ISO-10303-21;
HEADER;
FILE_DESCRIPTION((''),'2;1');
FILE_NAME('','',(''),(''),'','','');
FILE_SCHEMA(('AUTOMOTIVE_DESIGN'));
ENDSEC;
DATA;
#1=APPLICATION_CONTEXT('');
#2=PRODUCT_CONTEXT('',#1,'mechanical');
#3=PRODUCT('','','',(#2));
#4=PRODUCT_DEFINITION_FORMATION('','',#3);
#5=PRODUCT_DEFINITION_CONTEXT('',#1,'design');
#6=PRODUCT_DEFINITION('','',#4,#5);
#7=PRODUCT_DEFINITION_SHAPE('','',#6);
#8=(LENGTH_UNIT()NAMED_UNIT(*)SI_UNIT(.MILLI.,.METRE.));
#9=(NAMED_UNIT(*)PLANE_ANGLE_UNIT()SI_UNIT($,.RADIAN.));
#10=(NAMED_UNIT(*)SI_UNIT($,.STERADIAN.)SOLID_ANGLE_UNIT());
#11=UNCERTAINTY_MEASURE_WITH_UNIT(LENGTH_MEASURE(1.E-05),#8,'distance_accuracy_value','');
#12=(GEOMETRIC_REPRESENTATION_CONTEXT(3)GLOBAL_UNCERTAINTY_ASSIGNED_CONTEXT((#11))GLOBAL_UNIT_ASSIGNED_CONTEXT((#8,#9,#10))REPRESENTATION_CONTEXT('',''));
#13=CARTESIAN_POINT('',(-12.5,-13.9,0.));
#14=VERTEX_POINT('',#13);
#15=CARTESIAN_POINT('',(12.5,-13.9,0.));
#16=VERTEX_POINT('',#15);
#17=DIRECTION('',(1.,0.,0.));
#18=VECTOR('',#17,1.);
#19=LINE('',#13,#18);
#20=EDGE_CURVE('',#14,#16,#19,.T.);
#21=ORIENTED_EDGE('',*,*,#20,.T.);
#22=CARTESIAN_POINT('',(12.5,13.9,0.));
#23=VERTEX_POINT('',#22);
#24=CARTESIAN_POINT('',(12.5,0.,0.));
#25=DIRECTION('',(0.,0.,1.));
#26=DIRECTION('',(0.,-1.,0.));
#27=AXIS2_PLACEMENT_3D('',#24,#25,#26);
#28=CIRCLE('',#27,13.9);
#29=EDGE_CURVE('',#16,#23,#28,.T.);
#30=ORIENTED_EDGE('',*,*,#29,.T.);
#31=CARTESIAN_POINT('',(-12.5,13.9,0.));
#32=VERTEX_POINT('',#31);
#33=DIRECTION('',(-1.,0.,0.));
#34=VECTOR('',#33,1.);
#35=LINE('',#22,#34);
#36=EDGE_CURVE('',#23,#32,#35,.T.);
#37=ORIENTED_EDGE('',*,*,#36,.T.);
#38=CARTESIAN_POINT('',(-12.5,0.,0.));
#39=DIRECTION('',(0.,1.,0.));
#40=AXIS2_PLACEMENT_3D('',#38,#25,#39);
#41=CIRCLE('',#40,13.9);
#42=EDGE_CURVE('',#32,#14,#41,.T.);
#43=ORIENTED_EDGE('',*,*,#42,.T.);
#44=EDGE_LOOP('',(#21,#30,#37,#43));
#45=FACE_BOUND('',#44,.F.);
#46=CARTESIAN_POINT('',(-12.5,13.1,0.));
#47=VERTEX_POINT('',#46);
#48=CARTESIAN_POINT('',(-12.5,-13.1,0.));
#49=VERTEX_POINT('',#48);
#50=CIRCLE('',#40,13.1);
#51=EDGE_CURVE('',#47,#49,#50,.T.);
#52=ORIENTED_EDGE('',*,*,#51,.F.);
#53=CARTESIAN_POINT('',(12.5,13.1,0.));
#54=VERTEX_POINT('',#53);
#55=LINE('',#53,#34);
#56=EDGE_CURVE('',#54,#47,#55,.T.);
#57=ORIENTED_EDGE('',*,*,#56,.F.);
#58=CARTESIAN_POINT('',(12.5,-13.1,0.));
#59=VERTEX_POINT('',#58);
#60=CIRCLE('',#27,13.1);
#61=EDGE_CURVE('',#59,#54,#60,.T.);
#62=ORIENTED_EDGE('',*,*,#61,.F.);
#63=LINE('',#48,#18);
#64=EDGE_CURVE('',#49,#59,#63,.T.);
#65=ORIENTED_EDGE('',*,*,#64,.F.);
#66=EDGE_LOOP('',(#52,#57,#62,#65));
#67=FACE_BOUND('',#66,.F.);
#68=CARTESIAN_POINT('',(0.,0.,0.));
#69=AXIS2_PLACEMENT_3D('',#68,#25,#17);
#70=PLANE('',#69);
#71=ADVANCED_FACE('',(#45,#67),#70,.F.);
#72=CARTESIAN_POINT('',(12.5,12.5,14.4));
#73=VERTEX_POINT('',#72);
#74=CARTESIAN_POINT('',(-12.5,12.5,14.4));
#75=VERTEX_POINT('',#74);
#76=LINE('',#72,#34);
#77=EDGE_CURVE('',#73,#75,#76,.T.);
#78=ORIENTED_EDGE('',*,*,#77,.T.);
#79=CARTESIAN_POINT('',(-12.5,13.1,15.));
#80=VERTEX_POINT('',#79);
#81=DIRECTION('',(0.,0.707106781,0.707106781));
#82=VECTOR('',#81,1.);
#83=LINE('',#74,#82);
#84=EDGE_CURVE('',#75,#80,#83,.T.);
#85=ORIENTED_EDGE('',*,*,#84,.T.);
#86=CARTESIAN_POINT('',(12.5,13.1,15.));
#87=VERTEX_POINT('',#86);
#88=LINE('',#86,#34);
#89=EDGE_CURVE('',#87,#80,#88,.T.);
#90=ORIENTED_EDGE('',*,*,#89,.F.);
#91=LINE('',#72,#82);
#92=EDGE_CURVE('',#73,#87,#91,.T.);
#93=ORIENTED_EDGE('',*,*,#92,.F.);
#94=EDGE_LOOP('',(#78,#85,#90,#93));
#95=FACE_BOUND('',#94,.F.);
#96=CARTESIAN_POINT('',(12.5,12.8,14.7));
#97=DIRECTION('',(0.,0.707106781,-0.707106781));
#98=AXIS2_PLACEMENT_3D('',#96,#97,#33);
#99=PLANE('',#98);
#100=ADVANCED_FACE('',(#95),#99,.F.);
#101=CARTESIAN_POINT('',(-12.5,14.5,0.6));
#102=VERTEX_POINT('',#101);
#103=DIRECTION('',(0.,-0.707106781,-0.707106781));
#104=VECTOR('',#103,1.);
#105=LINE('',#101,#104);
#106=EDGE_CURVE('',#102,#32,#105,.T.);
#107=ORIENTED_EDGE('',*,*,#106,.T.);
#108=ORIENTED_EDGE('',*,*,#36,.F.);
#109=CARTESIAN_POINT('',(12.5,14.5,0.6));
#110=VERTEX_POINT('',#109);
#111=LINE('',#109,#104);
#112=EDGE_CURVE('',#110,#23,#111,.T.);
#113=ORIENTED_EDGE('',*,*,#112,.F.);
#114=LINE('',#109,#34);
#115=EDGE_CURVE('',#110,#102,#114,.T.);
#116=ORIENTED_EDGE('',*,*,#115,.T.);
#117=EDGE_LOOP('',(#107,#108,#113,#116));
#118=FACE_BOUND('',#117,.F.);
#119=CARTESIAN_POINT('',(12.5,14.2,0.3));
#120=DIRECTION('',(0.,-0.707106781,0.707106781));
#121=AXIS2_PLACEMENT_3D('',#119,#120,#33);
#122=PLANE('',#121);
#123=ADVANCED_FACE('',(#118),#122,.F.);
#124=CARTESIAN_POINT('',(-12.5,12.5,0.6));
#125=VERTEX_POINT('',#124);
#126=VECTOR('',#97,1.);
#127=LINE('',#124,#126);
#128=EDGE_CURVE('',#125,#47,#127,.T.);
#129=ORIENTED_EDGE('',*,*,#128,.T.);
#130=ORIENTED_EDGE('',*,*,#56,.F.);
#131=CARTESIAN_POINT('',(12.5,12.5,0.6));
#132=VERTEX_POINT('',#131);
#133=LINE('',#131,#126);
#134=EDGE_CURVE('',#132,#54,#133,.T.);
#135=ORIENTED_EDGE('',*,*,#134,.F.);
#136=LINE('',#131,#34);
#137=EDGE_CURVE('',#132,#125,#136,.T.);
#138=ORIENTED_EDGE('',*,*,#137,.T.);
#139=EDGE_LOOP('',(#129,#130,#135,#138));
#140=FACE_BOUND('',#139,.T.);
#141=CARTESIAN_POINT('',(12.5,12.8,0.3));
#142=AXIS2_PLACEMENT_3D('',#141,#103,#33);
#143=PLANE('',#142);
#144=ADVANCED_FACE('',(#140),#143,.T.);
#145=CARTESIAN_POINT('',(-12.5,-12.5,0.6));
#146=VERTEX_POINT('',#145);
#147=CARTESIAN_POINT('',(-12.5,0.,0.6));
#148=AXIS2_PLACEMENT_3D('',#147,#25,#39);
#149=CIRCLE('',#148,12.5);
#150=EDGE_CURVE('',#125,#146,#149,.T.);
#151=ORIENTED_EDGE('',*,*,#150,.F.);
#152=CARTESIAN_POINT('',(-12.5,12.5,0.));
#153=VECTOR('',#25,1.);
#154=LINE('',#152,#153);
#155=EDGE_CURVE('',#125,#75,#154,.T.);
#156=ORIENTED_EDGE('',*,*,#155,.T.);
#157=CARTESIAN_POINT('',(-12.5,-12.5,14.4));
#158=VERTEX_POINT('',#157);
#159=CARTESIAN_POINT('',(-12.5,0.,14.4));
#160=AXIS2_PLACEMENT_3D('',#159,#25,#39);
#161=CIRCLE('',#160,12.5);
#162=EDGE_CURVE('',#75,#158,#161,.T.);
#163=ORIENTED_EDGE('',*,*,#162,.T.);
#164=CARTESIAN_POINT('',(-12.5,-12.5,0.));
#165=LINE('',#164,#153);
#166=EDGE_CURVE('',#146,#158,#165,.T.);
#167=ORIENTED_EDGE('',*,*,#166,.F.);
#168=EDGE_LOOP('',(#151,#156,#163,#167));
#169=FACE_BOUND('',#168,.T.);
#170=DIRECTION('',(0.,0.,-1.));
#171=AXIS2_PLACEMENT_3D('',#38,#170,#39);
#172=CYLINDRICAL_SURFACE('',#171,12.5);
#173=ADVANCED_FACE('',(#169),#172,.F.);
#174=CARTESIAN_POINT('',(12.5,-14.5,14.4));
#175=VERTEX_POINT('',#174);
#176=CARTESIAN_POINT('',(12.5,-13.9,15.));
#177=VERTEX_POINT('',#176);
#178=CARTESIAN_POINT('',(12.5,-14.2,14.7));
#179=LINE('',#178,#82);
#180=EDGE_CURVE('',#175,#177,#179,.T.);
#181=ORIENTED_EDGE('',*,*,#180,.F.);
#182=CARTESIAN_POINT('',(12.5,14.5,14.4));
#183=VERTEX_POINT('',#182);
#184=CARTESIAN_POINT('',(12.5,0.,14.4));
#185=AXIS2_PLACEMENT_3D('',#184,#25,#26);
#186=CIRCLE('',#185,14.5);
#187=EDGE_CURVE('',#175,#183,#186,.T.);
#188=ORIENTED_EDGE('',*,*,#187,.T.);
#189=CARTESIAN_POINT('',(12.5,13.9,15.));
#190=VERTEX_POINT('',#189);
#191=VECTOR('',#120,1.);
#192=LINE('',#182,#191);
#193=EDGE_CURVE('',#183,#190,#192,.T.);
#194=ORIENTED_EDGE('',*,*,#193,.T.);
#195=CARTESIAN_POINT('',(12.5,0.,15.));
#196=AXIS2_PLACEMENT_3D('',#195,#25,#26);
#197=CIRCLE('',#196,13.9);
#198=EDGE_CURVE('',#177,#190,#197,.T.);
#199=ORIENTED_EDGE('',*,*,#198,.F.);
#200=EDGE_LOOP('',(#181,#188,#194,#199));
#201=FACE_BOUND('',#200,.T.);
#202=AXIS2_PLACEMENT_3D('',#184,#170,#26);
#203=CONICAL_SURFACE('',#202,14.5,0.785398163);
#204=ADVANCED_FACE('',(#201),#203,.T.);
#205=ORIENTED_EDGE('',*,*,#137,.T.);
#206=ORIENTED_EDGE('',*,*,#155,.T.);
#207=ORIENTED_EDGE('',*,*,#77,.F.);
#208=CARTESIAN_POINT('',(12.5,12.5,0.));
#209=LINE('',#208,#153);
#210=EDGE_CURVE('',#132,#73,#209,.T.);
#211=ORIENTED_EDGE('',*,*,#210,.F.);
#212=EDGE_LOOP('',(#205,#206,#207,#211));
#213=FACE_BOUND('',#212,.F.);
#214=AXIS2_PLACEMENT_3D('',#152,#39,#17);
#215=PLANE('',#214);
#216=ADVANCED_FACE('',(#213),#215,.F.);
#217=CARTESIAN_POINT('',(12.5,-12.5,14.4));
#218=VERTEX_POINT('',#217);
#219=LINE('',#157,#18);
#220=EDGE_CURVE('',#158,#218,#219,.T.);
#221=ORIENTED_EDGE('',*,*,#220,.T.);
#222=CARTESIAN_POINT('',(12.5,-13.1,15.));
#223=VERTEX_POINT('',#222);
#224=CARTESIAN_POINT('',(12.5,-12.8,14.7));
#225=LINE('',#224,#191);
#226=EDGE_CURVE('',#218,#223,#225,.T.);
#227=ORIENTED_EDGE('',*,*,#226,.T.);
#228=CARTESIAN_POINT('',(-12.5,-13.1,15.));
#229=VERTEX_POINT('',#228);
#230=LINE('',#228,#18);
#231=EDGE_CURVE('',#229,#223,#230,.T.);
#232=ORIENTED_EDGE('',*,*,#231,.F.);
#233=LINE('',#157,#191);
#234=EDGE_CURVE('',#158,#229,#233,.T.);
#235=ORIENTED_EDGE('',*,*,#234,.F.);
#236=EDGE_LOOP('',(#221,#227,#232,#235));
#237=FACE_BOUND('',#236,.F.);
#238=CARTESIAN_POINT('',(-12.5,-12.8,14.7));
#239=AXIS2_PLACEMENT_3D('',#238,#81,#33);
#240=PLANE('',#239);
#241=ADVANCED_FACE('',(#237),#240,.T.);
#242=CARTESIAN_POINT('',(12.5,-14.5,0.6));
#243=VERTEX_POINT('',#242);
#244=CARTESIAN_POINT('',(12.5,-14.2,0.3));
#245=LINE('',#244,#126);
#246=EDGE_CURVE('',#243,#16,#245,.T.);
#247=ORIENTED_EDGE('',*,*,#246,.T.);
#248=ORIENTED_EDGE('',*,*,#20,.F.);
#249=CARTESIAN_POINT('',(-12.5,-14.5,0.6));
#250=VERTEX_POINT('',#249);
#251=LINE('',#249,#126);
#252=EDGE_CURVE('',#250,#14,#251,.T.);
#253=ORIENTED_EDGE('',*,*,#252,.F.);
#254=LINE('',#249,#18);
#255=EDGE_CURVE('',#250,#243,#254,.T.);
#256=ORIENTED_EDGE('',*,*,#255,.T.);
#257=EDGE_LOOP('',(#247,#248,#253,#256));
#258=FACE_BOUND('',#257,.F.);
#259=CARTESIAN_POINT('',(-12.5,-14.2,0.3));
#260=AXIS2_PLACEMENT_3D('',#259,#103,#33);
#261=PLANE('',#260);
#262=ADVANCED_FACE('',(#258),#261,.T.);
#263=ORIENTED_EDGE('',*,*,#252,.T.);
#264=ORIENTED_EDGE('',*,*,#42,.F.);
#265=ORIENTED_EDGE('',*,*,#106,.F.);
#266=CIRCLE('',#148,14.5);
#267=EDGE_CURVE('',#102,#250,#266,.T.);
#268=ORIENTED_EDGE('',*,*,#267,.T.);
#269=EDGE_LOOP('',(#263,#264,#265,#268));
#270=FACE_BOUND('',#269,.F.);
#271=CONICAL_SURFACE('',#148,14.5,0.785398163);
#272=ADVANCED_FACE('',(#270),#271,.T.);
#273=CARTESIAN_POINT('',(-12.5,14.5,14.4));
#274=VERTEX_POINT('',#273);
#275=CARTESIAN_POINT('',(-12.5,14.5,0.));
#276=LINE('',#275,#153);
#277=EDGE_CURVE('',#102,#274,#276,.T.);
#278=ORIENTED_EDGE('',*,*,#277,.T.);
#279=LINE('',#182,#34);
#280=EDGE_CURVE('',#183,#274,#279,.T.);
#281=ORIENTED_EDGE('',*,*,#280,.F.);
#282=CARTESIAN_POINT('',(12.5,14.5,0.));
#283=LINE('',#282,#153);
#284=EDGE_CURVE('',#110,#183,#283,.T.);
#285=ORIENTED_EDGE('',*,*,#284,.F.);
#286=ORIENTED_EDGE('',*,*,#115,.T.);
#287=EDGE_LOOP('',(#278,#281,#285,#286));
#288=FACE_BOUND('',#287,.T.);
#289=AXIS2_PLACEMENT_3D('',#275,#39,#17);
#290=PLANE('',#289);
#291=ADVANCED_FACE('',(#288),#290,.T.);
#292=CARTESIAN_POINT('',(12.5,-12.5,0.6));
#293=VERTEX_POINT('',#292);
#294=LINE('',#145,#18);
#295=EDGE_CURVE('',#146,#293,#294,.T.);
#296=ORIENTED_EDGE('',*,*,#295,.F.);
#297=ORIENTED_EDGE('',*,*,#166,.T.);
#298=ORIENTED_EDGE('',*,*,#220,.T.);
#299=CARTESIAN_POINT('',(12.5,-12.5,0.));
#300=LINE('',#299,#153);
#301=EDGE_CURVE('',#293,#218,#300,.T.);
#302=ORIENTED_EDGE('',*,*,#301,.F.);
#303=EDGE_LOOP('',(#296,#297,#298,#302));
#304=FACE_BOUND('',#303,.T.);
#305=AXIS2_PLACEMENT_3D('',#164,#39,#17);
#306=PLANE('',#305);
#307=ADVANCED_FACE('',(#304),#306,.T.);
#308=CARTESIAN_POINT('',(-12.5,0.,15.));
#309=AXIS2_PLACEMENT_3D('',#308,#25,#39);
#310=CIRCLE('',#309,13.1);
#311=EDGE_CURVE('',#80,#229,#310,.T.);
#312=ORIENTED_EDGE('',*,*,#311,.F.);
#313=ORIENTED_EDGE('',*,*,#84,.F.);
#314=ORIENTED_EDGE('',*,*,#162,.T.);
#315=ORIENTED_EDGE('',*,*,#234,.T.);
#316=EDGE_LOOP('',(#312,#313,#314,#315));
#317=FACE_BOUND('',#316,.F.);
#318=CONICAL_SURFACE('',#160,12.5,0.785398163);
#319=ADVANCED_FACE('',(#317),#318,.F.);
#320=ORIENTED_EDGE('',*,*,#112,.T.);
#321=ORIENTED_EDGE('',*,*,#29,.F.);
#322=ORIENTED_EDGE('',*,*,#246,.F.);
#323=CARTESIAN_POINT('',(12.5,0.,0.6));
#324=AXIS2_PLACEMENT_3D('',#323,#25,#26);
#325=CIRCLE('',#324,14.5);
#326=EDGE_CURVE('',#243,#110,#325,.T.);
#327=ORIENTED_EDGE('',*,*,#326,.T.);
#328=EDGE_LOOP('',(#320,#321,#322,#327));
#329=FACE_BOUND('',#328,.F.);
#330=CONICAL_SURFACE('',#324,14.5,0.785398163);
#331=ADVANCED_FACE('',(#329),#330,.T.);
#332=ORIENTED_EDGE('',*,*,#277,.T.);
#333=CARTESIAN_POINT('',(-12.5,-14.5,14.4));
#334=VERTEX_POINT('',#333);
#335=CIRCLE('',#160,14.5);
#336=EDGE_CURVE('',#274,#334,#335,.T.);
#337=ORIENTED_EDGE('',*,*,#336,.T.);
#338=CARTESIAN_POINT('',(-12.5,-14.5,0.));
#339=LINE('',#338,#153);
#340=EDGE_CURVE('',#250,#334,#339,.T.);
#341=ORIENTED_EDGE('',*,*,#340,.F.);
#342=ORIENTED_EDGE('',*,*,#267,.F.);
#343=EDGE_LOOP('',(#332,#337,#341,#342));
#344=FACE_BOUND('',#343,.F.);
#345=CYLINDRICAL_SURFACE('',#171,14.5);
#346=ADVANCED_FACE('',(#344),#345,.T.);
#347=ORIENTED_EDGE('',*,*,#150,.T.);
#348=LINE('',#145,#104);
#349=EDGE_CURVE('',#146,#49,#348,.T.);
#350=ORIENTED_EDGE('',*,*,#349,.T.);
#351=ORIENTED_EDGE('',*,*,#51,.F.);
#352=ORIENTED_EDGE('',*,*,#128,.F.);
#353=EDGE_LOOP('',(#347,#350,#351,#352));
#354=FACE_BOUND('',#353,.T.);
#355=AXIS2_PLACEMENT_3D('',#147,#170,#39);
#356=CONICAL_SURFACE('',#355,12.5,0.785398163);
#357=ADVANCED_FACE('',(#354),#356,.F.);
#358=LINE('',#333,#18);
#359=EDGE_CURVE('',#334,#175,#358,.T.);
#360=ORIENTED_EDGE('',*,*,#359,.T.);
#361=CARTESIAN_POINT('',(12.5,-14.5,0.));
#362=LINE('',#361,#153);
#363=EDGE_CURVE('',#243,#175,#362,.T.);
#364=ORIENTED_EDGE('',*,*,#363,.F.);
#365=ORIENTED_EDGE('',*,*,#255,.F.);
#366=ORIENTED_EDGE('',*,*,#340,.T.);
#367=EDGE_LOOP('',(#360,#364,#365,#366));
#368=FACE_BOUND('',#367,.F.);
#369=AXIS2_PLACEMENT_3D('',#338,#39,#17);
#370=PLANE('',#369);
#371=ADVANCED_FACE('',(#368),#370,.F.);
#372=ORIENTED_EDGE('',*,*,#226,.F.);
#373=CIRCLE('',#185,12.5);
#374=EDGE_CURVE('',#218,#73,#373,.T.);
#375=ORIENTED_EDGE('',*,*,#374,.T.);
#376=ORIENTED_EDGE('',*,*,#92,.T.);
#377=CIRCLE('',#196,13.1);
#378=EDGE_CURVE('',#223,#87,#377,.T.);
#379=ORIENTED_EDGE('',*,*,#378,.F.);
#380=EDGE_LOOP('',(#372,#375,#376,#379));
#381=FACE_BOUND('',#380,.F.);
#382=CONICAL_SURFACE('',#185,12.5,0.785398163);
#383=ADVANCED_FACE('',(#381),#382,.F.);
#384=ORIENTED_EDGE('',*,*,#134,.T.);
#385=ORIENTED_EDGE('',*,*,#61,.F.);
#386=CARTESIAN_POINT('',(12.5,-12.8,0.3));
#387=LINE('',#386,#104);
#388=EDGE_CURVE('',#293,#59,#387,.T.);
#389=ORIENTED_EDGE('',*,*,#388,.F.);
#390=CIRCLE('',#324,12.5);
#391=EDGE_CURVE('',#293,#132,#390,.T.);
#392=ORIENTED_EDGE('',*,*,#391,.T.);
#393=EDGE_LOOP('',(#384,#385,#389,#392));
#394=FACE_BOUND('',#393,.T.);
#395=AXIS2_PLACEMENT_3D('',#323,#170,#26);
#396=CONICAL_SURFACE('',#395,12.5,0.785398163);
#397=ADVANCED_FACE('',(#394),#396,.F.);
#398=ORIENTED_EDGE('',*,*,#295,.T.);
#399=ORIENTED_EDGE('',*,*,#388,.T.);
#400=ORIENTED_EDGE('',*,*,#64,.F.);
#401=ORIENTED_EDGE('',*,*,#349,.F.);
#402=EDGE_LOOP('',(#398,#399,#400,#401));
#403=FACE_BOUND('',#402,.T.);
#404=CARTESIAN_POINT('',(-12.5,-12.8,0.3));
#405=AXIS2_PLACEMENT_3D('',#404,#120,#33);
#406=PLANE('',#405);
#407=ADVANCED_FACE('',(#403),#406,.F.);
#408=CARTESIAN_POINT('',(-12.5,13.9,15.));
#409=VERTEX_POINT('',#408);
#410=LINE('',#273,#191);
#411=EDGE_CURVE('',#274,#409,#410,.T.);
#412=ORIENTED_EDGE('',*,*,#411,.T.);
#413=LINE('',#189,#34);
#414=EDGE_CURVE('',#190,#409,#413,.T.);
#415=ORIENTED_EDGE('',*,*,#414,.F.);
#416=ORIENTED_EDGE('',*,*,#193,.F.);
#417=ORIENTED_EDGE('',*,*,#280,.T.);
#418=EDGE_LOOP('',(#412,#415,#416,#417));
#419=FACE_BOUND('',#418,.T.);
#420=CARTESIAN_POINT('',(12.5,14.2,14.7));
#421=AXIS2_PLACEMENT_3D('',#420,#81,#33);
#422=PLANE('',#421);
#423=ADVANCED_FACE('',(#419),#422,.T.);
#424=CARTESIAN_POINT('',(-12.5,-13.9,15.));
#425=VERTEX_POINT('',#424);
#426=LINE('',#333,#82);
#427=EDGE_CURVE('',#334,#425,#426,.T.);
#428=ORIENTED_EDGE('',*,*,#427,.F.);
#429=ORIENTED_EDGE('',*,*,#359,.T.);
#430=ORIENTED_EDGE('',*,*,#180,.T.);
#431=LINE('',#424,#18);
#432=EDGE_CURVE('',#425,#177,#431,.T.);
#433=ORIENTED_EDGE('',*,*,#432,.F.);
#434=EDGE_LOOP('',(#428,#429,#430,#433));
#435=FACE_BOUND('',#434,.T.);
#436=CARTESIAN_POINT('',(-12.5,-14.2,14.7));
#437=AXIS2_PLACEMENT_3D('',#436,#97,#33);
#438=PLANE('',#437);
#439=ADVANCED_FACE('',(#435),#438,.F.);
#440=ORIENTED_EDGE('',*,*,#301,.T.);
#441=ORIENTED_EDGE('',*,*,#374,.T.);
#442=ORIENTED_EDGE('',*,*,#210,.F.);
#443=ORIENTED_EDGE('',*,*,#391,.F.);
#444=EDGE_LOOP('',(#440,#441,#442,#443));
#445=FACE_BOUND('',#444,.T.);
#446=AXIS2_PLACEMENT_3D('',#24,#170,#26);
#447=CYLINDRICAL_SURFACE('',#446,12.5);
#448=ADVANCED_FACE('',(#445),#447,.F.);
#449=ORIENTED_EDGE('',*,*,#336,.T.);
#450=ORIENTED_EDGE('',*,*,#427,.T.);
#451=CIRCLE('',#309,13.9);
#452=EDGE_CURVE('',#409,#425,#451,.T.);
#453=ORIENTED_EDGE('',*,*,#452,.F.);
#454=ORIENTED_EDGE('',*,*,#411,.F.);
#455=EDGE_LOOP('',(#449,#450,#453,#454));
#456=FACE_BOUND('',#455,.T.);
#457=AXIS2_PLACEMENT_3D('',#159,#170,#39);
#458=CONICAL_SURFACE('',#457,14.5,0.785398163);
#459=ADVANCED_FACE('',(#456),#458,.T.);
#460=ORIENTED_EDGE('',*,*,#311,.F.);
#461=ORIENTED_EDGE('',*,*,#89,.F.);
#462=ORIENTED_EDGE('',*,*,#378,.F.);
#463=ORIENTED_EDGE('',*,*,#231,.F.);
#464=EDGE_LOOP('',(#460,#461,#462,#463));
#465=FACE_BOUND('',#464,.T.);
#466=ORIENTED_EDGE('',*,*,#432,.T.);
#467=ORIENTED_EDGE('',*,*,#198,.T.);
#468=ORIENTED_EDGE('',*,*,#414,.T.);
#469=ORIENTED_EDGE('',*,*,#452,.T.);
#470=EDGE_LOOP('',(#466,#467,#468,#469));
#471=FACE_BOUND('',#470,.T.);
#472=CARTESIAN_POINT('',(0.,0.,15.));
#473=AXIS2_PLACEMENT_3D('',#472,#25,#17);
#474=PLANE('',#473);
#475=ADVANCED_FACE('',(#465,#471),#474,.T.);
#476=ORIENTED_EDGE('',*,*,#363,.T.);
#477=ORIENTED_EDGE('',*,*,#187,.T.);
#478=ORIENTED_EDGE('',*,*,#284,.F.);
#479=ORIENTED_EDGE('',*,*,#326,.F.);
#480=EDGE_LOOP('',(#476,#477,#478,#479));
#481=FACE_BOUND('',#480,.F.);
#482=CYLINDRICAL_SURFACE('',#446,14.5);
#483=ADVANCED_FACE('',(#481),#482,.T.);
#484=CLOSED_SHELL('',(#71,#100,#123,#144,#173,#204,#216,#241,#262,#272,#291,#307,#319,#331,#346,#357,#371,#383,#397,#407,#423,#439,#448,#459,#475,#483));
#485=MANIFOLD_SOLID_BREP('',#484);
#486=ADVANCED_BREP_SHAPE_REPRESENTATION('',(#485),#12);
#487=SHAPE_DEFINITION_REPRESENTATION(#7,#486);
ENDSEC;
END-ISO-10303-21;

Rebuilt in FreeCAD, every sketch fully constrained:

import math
import FreeCAD as App
import Part
import Sketcher

V = App.Vector
Q = App.Units.Quantity


def edges_at(feature, points):
    """Names of the edges that pass closest to the given points."""
    edges = feature.Shape.Edges
    near = lambda p: min(range(len(edges)), key=lambda i: edges[i].distToShape(Part.Vertex(*p))[0])
    return sorted({f"Edge{near(p) + 1}" for p in points})

doc = App.newDocument("Part")
params = doc.addObject("Spreadsheet::Sheet", "Params")
for row, (alias, value) in enumerate([
    ("sketch1_radius", "14.5 mm"),
    ("sketch1_radius2", "12.5 mm"),
    ("sketch1_width", "25 mm"),
    ("pad1_length", "15 mm"),
    ("chamfer_size", "0.6 mm"),
], start=1):
    params.set(f"A{row}", alias)
    params.set(f"B{row}", "=" + value)
    params.setAlias(f"B{row}", alias)

body = doc.addObject("PartDesign::Body", "Body")

# Sketch on XY plane
sketch1 = body.newObject("Sketcher::SketchObject", "Sketch")
sketch1.AttachmentSupport = (doc.getObject("XY_Plane"), [""])
sketch1.MapMode = "FlatFace"
sketch1.addGeometry(Part.ArcOfCircle(Part.Circle(V(-12.5, 0, 0), V(0, 0, 1), 14.5), math.radians(90), math.radians(270)), False)
sketch1.addGeometry(Part.LineSegment(V(-12.5, -14.5, 0), V(12.5, -14.5, 0)), False)
sketch1.addGeometry(Part.ArcOfCircle(Part.Circle(V(12.5, 0, 0), V(0, 0, 1), 14.5), math.radians(-90), math.radians(90)), False)
sketch1.addGeometry(Part.LineSegment(V(12.5, 14.5, 0), V(-12.5, 14.5, 0)), False)
sketch1.addGeometry(Part.ArcOfCircle(Part.Circle(V(-12.5, 0, 0), V(0, 0, 1), 12.5), math.radians(90), math.radians(270)), False)
sketch1.addGeometry(Part.LineSegment(V(-12.5, 12.5, 0), V(12.5, 12.5, 0)), False)
sketch1.addGeometry(Part.ArcOfCircle(Part.Circle(V(12.5, 0, 0), V(0, 0, 1), 12.5), math.radians(-90), math.radians(90)), False)
sketch1.addGeometry(Part.LineSegment(V(12.5, -12.5, 0), V(-12.5, -12.5, 0)), False)
sketch1.addConstraint(Sketcher.Constraint("Tangent", 0, 2, 1, 1))
sketch1.addConstraint(Sketcher.Constraint("Tangent", 1, 2, 2, 1))
sketch1.addConstraint(Sketcher.Constraint("Tangent", 2, 2, 3, 1))
sketch1.addConstraint(Sketcher.Constraint("Tangent", 3, 2, 0, 1))
sketch1.addConstraint(Sketcher.Constraint("Tangent", 4, 1, 5, 1))
sketch1.addConstraint(Sketcher.Constraint("Tangent", 5, 2, 6, 2))
sketch1.addConstraint(Sketcher.Constraint("Tangent", 6, 1, 7, 1))
sketch1.addConstraint(Sketcher.Constraint("Tangent", 7, 2, 4, 2))
sketch1.addConstraint(Sketcher.Constraint("Horizontal", 1))
sketch1.addConstraint(Sketcher.Constraint("Horizontal", 3))
sketch1.addConstraint(Sketcher.Constraint("Horizontal", 5))
sketch1.addConstraint(Sketcher.Constraint("Horizontal", 7))
sketch1.addConstraint(Sketcher.Constraint("Coincident", 4, 3, 0, 3))
sketch1.addConstraint(Sketcher.Constraint("Symmetric", 0, 3, 2, 3, -1, 1))
sketch1.addConstraint(Sketcher.Constraint("Vertical", 6, 3, 1, 2))
sketch1.addConstraint(Sketcher.Constraint("Radius", 0, Q("14.5 mm")))
sketch1.addConstraint(Sketcher.Constraint("Radius", 4, Q("12.5 mm")))
sketch1.addConstraint(Sketcher.Constraint("DistanceX", 1, 1, 1, 2, Q("25 mm")))
sketch1.setExpression("Constraints[15]", "Params.sketch1_radius")
sketch1.setExpression("Constraints[16]", "Params.sketch1_radius2")
sketch1.setExpression("Constraints[17]", "Params.sketch1_width")
pad1 = body.newObject("PartDesign::Pad", "Pad")
pad1.Profile = sketch1
pad1.setExpression("Length", "Params.pad1_length")
doc.recompute()

chamfer = body.newObject("PartDesign::Chamfer", "Chamfer")
chamfer.Base = (pad1, edges_at(pad1, [
    (-27, 0, 15),
    (0, -14.5, 15),
    (27, 0, 15),
    (0, 14.5, 15),
    (-25, 0, 15),
    (0, -12.5, 15),
    (25, 0, 15),
    (0, 12.5, 15),
    (-27, 0, 0),
    (0, -14.5, 0),
    (27, 0, 0),
    (0, 14.5, 0),
    (-25, 0, 0),
    (0, -12.5, 0),
    (25, 0, 0),
    (0, 12.5, 0),
]))
chamfer.setExpression("Size", "Params.chamfer_size")

doc.recompute()
